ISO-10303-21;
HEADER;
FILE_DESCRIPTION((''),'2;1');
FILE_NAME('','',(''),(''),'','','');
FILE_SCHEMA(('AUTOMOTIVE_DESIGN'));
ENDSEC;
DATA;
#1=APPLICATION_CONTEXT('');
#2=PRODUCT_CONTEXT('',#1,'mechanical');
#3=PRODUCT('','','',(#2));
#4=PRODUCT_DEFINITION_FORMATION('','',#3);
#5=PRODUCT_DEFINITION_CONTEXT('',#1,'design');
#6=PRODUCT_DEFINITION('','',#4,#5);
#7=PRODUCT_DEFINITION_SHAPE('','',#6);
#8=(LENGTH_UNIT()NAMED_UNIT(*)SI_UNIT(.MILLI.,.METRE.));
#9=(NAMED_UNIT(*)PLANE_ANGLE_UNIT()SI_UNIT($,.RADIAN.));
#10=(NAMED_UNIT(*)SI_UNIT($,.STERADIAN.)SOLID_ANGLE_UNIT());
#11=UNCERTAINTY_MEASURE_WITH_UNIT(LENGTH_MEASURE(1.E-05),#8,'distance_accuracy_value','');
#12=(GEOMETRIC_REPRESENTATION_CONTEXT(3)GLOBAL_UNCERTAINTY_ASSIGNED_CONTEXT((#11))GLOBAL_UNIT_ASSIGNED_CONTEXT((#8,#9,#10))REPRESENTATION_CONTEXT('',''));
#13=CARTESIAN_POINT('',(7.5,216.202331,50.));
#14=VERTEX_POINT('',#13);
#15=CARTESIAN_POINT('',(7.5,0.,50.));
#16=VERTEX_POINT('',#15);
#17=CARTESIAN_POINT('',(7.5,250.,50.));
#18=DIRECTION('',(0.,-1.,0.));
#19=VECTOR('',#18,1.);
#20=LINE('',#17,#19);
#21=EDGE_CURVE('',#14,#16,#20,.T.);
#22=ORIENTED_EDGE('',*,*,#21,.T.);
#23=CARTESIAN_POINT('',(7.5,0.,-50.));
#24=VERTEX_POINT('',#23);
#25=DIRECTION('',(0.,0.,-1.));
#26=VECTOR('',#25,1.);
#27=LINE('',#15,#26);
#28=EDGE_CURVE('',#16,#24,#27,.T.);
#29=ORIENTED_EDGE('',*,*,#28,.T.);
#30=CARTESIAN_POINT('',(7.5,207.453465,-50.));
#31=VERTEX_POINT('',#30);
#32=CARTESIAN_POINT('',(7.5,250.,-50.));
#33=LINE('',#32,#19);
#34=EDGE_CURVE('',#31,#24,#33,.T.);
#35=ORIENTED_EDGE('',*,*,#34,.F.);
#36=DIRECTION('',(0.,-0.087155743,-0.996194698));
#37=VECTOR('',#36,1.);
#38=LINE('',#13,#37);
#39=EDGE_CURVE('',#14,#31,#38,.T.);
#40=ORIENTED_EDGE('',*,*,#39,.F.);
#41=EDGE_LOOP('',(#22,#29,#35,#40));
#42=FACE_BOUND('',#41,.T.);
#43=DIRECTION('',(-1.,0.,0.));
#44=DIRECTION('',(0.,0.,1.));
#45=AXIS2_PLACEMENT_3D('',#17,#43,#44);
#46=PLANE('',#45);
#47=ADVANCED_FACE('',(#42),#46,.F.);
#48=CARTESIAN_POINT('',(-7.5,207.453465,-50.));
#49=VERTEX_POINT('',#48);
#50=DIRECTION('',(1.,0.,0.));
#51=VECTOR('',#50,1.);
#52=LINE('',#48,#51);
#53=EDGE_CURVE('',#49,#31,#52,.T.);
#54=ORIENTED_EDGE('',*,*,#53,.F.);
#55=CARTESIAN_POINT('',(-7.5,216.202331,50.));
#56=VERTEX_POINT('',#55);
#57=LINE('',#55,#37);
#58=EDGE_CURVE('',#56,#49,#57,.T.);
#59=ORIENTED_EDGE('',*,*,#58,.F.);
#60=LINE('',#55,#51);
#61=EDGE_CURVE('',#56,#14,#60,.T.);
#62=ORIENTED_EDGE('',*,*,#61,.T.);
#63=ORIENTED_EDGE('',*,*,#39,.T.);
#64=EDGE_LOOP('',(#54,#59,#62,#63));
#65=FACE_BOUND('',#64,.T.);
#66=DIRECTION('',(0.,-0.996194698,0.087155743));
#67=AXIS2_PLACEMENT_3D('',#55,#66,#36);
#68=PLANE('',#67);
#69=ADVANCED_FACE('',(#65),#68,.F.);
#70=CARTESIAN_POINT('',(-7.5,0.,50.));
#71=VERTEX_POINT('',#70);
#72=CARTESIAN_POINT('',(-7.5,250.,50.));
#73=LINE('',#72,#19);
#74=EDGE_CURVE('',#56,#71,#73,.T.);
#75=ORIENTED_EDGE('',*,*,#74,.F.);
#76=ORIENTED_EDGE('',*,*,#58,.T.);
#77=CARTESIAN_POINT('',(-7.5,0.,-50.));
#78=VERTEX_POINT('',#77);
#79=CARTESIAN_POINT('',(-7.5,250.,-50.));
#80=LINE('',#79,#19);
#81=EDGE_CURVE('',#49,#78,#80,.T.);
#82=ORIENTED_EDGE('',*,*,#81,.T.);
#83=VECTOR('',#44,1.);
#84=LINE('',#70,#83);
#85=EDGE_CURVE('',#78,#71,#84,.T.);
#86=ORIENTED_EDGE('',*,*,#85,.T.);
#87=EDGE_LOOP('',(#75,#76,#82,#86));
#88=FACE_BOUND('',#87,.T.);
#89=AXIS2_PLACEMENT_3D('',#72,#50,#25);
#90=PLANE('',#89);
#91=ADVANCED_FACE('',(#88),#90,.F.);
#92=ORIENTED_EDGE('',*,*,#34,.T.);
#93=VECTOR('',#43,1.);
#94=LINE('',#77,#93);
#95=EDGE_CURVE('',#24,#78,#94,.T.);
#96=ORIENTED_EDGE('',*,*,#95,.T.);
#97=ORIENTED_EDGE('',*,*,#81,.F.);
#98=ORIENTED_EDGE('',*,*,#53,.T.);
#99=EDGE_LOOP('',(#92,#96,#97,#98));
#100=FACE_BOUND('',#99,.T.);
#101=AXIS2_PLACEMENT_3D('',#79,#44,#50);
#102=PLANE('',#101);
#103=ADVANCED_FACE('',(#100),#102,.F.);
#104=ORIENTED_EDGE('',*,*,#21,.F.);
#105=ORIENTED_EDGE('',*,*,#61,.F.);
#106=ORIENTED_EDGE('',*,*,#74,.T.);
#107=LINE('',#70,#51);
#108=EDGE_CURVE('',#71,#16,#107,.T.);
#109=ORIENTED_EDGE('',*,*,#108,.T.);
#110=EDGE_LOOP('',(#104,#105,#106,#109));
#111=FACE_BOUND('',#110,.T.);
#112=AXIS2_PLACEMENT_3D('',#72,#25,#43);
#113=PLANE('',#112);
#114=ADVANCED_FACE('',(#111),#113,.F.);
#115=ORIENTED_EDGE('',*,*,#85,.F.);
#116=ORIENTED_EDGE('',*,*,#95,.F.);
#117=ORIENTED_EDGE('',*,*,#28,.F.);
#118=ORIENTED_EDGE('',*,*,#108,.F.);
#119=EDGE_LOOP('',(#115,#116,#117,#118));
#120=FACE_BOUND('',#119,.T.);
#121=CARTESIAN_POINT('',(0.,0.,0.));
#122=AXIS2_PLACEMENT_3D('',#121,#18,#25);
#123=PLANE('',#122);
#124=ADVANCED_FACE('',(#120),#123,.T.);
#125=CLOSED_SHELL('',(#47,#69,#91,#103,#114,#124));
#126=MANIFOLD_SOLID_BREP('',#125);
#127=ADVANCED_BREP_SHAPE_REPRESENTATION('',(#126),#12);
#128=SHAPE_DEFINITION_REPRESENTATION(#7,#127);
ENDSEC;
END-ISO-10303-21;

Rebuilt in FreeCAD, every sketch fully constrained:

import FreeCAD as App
import Part
import Sketcher
from FreeCAD import Vector
Q = App.Units.Quantity


def add_polygon(sketch, points):
    """Adds a closed chain of lines whose ends are joined by coincident constraints."""
    first, n = sketch.GeometryCount, len(points)
    for a, b in zip(points, points[1:] + points[:1]):
        sketch.addGeometry(Part.LineSegment(App.Vector(*a, 0), App.Vector(*b, 0)), False)
    for i in range(n):
        sketch.addConstraint(Sketcher.Constraint("Coincident", first + i, 2, first + (i + 1) % n, 1))

doc = App.newDocument("Part")
body = doc.addObject("PartDesign::Body", "Body")

# Sketch on XZ plane
sketch1 = body.newObject("Sketcher::SketchObject", "Sketch")
sketch1.AttachmentSupport = (doc.getObject("XZ_Plane"), [""])
sketch1.MapMode = "FlatFace"
add_polygon(sketch1, [(-7.5, -50), (-7.5, 50), (7.5, 50), (7.5, -50)])  # lines 0-3
sketch1.addConstraint(Sketcher.Constraint("Vertical", 0))
sketch1.addConstraint(Sketcher.Constraint("Horizontal", 1))
sketch1.addConstraint(Sketcher.Constraint("Vertical", 2))
sketch1.addConstraint(Sketcher.Constraint("Horizontal", 3))
sketch1.addConstraint(Sketcher.Constraint("Symmetric", 0, 2, 2, 2, -1, 1))
sketch1.addConstraint(Sketcher.Constraint("DistanceX", 1, 1, 1, 2, 15.0))
sketch1.addConstraint(Sketcher.Constraint("DistanceY", 0, 1, 0, 2, 100.0))
pad1 = body.newObject("PartDesign::Pad", "Pad")
pad1.Profile = sketch1
pad1.Length = 250
pad1.Reversed = True

# Sketch on YZ plane
sketch2 = body.newObject("Sketcher::SketchObject", "Sketch001")
sketch2.AttachmentSupport = (doc.getObject("YZ_Plane"), [""])
sketch2.MapMode = "FlatFace"
sketch2.AttachmentOffset = App.Placement(Vector(0, 0, 7.5), App.Rotation())
add_polygon(sketch2, [(216.202331, 50), (207.453465, -50), (250, -50), (250, 50)])  # lines 0-3
sketch2.addConstraint(Sketcher.Constraint("Horizontal", 1))
sketch2.addConstraint(Sketcher.Constraint("Vertical", 2))
sketch2.addConstraint(Sketcher.Constraint("Horizontal", 3))
sketch2.addConstraint(Sketcher.Constraint("DistanceY", 2, 1, 2, 2, 100.0))
sketch2.addConstraint(Sketcher.Constraint("Angle", 0, Q("-95 deg")))
sketch2.addConstraint(Sketcher.Constraint("DistanceY", 0, 2, -1, 1, 50.0))
sketch2.addConstraint(Sketcher.Constraint("DistanceX", -1, 1, 1, 2, 250.0))
sketch2.addConstraint(Sketcher.Constraint("DistanceX", 3, 2, 3, 1, 33.797669))
pocket1 = body.newObject("PartDesign::Pocket", "Pocket")
pocket1.Profile = sketch2
pocket1.Type = "ThroughAll"

doc.recompute()
